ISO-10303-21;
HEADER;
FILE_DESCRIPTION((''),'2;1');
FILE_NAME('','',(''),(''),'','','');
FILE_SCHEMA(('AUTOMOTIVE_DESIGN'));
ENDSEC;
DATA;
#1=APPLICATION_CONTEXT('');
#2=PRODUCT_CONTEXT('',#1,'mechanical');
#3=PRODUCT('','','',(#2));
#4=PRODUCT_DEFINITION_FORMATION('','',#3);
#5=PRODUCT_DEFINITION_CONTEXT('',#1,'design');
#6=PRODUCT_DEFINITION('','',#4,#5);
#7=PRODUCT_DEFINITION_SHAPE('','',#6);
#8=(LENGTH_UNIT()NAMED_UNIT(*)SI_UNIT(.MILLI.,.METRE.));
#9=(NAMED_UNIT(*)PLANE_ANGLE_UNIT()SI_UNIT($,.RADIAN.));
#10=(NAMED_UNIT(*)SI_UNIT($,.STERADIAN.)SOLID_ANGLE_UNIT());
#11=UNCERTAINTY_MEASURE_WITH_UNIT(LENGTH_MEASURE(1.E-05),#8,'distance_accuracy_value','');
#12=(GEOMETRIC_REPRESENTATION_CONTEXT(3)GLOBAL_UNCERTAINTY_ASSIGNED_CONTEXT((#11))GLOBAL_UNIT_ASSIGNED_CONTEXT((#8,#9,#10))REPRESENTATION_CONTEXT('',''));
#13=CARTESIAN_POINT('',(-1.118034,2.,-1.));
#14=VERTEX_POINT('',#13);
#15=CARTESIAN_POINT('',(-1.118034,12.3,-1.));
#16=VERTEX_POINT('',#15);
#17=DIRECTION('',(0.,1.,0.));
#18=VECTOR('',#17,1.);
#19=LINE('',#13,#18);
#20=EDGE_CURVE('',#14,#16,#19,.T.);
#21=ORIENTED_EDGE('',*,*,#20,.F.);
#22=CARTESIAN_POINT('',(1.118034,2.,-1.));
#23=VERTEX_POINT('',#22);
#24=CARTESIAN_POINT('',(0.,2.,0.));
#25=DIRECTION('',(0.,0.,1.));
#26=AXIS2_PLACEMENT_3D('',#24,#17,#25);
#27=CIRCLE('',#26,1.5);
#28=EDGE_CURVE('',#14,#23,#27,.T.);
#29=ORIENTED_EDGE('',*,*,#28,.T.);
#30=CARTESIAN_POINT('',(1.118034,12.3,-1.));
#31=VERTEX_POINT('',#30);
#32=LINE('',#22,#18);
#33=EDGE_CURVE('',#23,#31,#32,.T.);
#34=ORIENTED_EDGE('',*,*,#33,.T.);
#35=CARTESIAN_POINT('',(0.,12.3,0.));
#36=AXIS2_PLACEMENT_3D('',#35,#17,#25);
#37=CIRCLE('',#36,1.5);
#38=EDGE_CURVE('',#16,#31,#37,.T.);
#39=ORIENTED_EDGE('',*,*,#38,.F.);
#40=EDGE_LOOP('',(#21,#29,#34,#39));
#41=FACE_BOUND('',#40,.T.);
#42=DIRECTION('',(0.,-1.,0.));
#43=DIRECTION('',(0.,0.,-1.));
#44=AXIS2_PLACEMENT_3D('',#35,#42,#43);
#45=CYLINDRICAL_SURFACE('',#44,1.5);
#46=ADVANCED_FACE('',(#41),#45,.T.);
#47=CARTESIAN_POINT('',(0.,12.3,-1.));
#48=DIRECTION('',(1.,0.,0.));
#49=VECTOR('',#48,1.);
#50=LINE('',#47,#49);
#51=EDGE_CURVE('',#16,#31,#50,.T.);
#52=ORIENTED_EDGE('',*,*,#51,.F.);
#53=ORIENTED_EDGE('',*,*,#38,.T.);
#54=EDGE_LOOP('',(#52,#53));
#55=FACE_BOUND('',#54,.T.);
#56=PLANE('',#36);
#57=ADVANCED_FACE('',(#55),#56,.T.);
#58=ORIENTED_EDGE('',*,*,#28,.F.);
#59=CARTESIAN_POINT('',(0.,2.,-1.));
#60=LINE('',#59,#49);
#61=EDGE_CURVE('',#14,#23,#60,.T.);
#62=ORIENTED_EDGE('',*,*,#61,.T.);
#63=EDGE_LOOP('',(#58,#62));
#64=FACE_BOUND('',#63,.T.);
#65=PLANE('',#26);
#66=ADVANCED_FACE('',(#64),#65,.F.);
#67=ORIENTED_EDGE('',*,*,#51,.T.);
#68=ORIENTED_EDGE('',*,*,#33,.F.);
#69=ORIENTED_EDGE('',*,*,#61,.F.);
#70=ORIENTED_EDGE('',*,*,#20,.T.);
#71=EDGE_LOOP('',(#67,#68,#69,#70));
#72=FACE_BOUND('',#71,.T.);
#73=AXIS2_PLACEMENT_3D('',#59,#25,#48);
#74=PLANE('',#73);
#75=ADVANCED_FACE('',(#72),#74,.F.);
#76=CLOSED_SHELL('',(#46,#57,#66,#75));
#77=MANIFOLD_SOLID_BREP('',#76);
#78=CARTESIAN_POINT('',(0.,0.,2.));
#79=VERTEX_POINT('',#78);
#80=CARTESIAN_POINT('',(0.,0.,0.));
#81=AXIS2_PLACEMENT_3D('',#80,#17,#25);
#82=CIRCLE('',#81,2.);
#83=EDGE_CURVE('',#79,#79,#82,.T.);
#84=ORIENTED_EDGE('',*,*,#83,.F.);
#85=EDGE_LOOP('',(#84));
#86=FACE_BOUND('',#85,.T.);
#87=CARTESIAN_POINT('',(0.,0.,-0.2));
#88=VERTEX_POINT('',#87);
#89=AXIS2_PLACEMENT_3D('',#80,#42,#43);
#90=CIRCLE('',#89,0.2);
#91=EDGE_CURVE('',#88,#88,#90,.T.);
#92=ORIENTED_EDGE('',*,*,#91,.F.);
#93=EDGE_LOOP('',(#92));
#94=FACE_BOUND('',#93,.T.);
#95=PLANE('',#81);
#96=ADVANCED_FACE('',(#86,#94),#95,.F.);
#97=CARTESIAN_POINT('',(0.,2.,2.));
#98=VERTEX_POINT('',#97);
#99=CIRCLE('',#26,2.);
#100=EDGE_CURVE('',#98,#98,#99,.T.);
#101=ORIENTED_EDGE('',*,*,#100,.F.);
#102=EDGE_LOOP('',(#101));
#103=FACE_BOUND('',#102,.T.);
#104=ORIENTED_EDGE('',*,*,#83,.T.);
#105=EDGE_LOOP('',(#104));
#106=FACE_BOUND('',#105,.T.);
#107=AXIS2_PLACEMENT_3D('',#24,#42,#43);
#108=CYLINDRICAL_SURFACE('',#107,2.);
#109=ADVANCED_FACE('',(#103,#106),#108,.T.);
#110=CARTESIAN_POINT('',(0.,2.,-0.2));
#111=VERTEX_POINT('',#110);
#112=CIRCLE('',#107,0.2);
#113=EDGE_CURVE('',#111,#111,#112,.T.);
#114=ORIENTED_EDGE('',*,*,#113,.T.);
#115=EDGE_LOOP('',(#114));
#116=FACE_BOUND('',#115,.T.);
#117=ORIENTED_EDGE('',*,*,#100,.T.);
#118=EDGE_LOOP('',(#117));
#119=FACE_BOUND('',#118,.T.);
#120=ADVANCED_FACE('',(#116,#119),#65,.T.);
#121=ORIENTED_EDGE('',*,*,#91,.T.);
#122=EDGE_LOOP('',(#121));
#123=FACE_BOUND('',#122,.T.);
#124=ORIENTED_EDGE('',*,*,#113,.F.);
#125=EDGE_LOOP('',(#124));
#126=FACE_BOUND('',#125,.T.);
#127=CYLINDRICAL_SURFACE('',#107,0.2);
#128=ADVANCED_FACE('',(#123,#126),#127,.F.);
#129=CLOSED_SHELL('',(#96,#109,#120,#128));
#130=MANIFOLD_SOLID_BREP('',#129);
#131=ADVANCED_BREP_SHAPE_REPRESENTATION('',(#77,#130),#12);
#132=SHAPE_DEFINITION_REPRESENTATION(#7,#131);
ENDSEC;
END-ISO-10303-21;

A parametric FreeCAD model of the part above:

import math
import FreeCAD as App
import Part
import Sketcher

V = App.Vector
Q = App.Units.Quantity

doc = App.newDocument("Part")
params = doc.addObject("Spreadsheet::Sheet", "Params")
for row, (alias, value) in enumerate([
    ("sketch1_diameter", "4 mm"),
    ("pad1_length", "2 mm"),
    ("sketch2_diameter", "0.4 mm"),
    ("pocket1_length", "2 mm"),
    ("sketch3_diameter", "3 mm"),
    ("pad2_length", "10.3 mm"),
    ("sketch4_radius", "1.5 mm"),
    ("pocket2_length", "10.3 mm"),
], start=1):
    params.set(f"A{row}", alias)
    params.set(f"B{row}", "=" + value)
    params.setAlias(f"B{row}", alias)

body = doc.addObject("PartDesign::Body", "Body")

sketch1 = body.newObject("Sketcher::SketchObject", "Sketch")
sketch1.AttachmentSupport = (doc.getObject("XZ_Plane"), [""])
sketch1.MapMode = "FlatFace"
sketch1.addGeometry(Part.Circle(V(0, 0, 0), V(0, 0, 1), 2), False)
sketch1.addConstraint(Sketcher.Constraint("Coincident", 0, 3, -1, 1))
sketch1.addConstraint(Sketcher.Constraint("Diameter", 0, Q("4 mm")))
sketch1.setExpression("Constraints[1]", "Params.sketch1_diameter")
pad1 = body.newObject("PartDesign::Pad", "Pad")
pad1.Profile = sketch1
pad1.setExpression("Length", "Params.pad1_length")
pad1.Reversed = True

sketch2 = body.newObject("Sketcher::SketchObject", "Sketch001")
sketch2.AttachmentSupport = (doc.getObject("XZ_Plane"), [""])
sketch2.MapMode = "FlatFace"
sketch2.addGeometry(Part.Circle(V(0, 0, 0), V(0, 0, 1), 0.2), False)
sketch2.addConstraint(Sketcher.Constraint("Coincident", 0, 3, -1, 1))
sketch2.addConstraint(Sketcher.Constraint("Diameter", 0, Q("0.4 mm")))
sketch2.setExpression("Constraints[1]", "Params.sketch2_diameter")
pocket1 = body.newObject("PartDesign::Pocket", "Pocket")
pocket1.Profile = sketch2
pocket1.setExpression("Length", "Params.pocket1_length")
body2 = doc.addObject("PartDesign::Body", "Body001")

sketch3 = body2.newObject("Sketcher::SketchObject", "Sketch002")
sketch3.AttachmentSupport = (doc.getObject("XZ_Plane001"), [""])
sketch3.MapMode = "FlatFace"
sketch3.AttachmentOffset = App.Placement(V(0, 0, -2), App.Rotation())
sketch3.addGeometry(Part.Circle(V(0, 0, 0), V(0, 0, 1), 1.5), False)
sketch3.addConstraint(Sketcher.Constraint("Coincident", 0, 3, -1, 1))
sketch3.addConstraint(Sketcher.Constraint("Diameter", 0, Q("3 mm")))
sketch3.setExpression("Constraints[1]", "Params.sketch3_diameter")
pad2 = body2.newObject("PartDesign::Pad", "Pad001")
pad2.Profile = sketch3
pad2.setExpression("Length", "Params.pad2_length")
pad2.Reversed = True

sketch4 = body2.newObject("Sketcher::SketchObject", "Sketch003")
sketch4.AttachmentSupport = (doc.getObject("XZ_Plane001"), [""])
sketch4.MapMode = "FlatFace"
sketch4.AttachmentOffset = App.Placement(V(0, 0, -12.3), App.Rotation())
sketch4.addGeometry(Part.ArcOfCircle(Part.Circle(V(0, 0, 0), V(0, 0, 1), 1.5), math.radians(-138), math.radians(-42)), False)
sketch4.addGeometry(Part.LineSegment(V(-1.1, -1, 0), V(1.1, -1, 0)), False)
sketch4.addConstraint(Sketcher.Constraint("Coincident", 0, 1, 1, 1))
sketch4.addConstraint(Sketcher.Constraint("Coincident", 1, 2, 0, 2))
sketch4.addConstraint(Sketcher.Constraint("Horizontal", 1))
sketch4.addConstraint(Sketcher.Constraint("Coincident", 0, 3, -1, 1))
sketch4.addConstraint(Sketcher.Constraint("Radius", 0, Q("1.5 mm")))
sketch4.addConstraint(Sketcher.Constraint("DistanceY", 0, 1, -1, 1, Q("1 mm")))
sketch4.setExpression("Constraints[4]", "Params.sketch4_radius")
pocket2 = body2.newObject("PartDesign::Pocket", "Pocket001")
pocket2.Profile = sketch4
pocket2.setExpression("Length", "Params.pocket2_length")
pocket2.Reversed = True

doc.recompute()
